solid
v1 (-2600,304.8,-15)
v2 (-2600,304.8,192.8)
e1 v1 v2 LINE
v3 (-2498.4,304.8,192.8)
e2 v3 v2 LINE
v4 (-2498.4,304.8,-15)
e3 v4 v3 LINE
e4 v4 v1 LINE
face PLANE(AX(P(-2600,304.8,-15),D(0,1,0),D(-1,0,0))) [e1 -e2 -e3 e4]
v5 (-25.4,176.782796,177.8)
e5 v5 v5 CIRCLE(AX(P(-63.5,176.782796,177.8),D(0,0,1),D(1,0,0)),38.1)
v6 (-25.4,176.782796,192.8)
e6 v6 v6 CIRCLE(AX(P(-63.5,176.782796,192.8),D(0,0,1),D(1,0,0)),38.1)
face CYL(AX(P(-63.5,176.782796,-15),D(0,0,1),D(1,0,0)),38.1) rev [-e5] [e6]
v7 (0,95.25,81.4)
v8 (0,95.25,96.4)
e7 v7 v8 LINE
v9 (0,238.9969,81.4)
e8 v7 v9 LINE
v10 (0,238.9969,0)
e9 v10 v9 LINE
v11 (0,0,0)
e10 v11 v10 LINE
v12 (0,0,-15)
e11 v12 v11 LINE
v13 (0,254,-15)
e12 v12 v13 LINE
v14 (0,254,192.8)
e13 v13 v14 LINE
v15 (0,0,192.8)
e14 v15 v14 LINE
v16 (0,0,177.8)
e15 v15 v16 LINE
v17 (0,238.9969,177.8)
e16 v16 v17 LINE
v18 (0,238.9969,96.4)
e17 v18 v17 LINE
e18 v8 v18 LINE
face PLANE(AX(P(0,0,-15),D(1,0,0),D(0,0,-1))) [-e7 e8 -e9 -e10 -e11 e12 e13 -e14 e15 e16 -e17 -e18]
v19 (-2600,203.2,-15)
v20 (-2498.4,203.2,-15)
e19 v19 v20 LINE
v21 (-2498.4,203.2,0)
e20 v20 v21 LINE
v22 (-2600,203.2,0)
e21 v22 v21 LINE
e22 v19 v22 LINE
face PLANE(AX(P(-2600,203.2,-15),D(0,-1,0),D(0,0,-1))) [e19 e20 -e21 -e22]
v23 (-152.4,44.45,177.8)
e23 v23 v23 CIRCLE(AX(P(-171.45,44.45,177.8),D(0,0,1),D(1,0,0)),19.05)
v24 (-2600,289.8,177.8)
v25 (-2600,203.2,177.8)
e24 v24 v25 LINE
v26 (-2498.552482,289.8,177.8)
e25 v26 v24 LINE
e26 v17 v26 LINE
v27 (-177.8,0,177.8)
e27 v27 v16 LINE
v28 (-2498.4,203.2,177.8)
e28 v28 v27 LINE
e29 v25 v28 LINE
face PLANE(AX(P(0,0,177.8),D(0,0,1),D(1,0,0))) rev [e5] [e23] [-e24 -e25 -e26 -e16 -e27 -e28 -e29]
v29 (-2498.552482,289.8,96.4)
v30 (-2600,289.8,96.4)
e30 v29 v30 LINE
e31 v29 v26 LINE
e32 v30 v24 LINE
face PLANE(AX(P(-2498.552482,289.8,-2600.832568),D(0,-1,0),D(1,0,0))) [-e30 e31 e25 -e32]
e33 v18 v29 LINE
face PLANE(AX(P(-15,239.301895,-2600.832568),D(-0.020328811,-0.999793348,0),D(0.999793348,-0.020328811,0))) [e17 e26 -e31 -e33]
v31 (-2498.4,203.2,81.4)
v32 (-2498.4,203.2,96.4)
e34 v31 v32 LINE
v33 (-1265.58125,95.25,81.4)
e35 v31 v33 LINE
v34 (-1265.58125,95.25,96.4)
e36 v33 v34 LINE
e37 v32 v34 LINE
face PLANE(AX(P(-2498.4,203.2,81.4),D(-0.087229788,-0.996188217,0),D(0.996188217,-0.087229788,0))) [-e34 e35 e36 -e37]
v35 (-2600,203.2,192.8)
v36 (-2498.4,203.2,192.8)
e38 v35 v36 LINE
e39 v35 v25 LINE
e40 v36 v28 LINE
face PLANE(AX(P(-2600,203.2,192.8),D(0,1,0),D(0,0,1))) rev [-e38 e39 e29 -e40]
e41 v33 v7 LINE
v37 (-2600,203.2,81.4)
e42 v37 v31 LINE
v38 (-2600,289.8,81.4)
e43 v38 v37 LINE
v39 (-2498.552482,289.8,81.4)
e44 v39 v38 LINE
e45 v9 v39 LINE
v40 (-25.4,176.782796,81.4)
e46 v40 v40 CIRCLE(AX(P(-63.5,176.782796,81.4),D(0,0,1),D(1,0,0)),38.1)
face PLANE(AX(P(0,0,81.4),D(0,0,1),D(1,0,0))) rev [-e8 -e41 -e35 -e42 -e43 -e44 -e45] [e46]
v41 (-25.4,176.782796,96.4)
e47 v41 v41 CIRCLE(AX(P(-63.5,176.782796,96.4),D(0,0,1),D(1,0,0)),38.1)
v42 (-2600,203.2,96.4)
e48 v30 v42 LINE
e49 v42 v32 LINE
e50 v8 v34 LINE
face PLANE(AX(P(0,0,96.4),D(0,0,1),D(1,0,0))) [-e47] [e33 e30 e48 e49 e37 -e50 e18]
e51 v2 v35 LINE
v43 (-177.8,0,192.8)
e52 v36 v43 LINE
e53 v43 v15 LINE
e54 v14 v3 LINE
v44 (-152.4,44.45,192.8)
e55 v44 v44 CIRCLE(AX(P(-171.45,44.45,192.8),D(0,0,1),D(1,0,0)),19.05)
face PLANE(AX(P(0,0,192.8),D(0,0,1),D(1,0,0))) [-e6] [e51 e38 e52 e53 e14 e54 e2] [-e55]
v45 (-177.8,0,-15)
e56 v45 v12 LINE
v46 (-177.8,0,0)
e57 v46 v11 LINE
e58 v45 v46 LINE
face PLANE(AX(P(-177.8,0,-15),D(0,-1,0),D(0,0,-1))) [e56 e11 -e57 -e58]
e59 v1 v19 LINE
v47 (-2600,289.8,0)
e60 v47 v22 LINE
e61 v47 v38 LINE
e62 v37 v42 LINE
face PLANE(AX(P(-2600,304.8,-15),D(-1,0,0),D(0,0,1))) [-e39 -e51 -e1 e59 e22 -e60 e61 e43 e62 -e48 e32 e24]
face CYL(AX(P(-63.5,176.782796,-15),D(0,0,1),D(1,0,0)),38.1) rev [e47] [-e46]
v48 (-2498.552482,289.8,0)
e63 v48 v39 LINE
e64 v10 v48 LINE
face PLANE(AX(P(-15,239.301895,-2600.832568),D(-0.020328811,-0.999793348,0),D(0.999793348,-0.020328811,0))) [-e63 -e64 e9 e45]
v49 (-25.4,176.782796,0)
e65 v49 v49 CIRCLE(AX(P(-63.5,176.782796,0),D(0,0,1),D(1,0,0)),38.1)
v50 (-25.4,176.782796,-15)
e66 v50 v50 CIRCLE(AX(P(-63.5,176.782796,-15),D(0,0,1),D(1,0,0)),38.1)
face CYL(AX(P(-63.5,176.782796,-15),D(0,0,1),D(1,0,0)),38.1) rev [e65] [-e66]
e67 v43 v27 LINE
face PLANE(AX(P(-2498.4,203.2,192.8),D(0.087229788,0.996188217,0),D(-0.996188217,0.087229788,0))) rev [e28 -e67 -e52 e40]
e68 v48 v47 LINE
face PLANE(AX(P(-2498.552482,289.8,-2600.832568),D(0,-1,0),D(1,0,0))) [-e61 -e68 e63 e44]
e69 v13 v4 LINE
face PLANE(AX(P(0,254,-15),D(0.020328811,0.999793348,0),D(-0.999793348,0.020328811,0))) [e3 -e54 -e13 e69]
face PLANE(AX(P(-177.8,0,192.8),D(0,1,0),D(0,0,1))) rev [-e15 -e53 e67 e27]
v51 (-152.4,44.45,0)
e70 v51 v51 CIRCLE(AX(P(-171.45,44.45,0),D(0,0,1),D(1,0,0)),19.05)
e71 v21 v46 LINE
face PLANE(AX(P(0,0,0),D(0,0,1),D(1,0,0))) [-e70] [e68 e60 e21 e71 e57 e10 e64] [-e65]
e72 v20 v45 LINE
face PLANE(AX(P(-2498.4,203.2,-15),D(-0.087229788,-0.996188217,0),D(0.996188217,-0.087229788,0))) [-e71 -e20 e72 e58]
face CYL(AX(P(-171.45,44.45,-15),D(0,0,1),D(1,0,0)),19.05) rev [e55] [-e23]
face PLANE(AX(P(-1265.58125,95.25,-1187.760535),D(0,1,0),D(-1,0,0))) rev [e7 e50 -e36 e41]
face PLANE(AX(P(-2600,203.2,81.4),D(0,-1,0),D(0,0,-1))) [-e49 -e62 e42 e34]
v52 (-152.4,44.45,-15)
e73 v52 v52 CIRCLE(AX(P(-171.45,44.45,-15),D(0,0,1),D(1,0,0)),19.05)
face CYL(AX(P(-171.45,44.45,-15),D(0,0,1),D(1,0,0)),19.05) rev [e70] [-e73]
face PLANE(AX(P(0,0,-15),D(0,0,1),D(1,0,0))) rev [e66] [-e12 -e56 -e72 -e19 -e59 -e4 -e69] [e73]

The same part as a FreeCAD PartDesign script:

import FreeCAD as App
import Part
import Sketcher

V = App.Vector
Q = App.Units.Quantity

doc = App.newDocument("Part")
body = doc.addObject("PartDesign::Body", "Body")

sketch1 = body.newObject("Sketcher::SketchObject", "Sketch")
sketch1.AttachmentSupport = (doc.getObject("XY_Plane"), [""])
sketch1.MapMode = "FlatFace"
sketch1.addGeometry(Part.LineSegment(V(-2498, 305, 0), V(-2600, 305, 0)), False)
sketch1.addGeometry(Part.LineSegment(V(-2600, 305, 0), V(-2600, 203, 0)), False)
sketch1.addGeometry(Part.LineSegment(V(-2600, 203, 0), V(-2498, 203, 0)), False)
sketch1.addGeometry(Part.LineSegment(V(-2498, 203, 0), V(-178, 0, 0)), False)
sketch1.addGeometry(Part.LineSegment(V(-178, 0, 0), V(0, 0, 0)), False)
sketch1.addGeometry(Part.LineSegment(V(0, 0, 0), V(0, 254, 0)), False)
sketch1.addGeometry(Part.LineSegment(V(0, 254, 0), V(-2498, 305, 0)), False)
sketch1.addConstraint(Sketcher.Constraint("Coincident", 0, 2, 1, 1))
sketch1.addConstraint(Sketcher.Constraint("Coincident", 1, 2, 2, 1))
sketch1.addConstraint(Sketcher.Constraint("Coincident", 2, 2, 3, 1))
sketch1.addConstraint(Sketcher.Constraint("Coincident", 3, 2, 4, 1))
sketch1.addConstraint(Sketcher.Constraint("Coincident", 4, 2, 5, 1))
sketch1.addConstraint(Sketcher.Constraint("Coincident", 5, 2, 6, 1))
sketch1.addConstraint(Sketcher.Constraint("Coincident", 6, 2, 0, 1))
sketch1.addConstraint(Sketcher.Constraint("Horizontal", 0))
sketch1.addConstraint(Sketcher.Constraint("Vertical", 1))
sketch1.addConstraint(Sketcher.Constraint("Horizontal", 2))
sketch1.addConstraint(Sketcher.Constraint("Horizontal", 4))
sketch1.addConstraint(Sketcher.Constraint("Vertical", 5))
sketch1.addConstraint(Sketcher.Constraint("Coincident", 4, 2, -1, 1))
sketch1.addConstraint(Sketcher.Constraint("Vertical", 2, 2, 6, 2))
sketch1.addConstraint(Sketcher.Constraint("Equal", 2, 1))
sketch1.addConstraint(Sketcher.Constraint("DistanceX", 0, 2, 0, 1, Q("4 in")))
sketch1.addConstraint(Sketcher.Constraint("DistanceX", 4, 1, 4, 2, Q("7 in")))
sketch1.addConstraint(Sketcher.Constraint("DistanceY", 5, 1, 5, 2, Q("10 in")))
sketch1.addConstraint(Sketcher.Constraint("DistanceY", -1, 1, 0, 2, Q("12 in")))
sketch1.addConstraint(Sketcher.Constraint("DistanceX", 0, 2, -1, 1, 2600.0))
pad1 = body.newObject("PartDesign::Pad", "Pad")
pad1.Profile = sketch1
pad1.Length = 15
pad1.Reversed = True
body2 = doc.addObject("PartDesign::Body", "Body001")

sketch2 = body2.newObject("Sketcher::SketchObject", "Sketch001")
sketch2.AttachmentSupport = (doc.getObject("XY_Plane001"), [""])
sketch2.MapMode = "FlatFace"
sketch2.AttachmentOffset = App.Placement(V(0, 0, 7 * 25.4), App.Rotation())
sketch2.addGeometry(Part.LineSegment(V(-2498, 203, 0), V(-178, 0, 0)), False)
sketch2.addGeometry(Part.LineSegment(V(-178, 0, 0), V(0, 0, 0)), False)
sketch2.addGeometry(Part.LineSegment(V(0, 0, 0), V(0, 254, 0)), False)
sketch2.addGeometry(Part.LineSegment(V(0, 254, 0), V(-2498, 305, 0)), False)
sketch2.addGeometry(Part.LineSegment(V(-2498, 305, 0), V(-2600, 305, 0)), False)
sketch2.addGeometry(Part.LineSegment(V(-2600, 305, 0), V(-2600, 203, 0)), False)
sketch2.addGeometry(Part.LineSegment(V(-2600, 203, 0), V(-2498, 203, 0)), False)
sketch2.addConstraint(Sketcher.Constraint("Coincident", 0, 2, 1, 1))
sketch2.addConstraint(Sketcher.Constraint("Coincident", 1, 2, 2, 1))
sketch2.addConstraint(Sketcher.Constraint("Coincident", 2, 2, 3, 1))
sketch2.addConstraint(Sketcher.Constraint("Coincident", 3, 2, 4, 1))
sketch2.addConstraint(Sketcher.Constraint("Coincident", 4, 2, 5, 1))
sketch2.addConstraint(Sketcher.Constraint("Coincident", 5, 2, 6, 1))
sketch2.addConstraint(Sketcher.Constraint("Coincident", 6, 2, 0, 1))
sketch2.addConstraint(Sketcher.Constraint("Horizontal", 1))
sketch2.addConstraint(Sketcher.Constraint("Vertical", 2))
sketch2.addConstraint(Sketcher.Constraint("Horizontal", 4))
sketch2.addConstraint(Sketcher.Constraint("Vertical", 5))
sketch2.addConstraint(Sketcher.Constraint("Horizontal", 6))
sketch2.addConstraint(Sketcher.Constraint("Coincident", 1, 2, -1, 1))
sketch2.addConstraint(Sketcher.Constraint("Vertical", 3, 2, 6, 2))
sketch2.addConstraint(Sketcher.Constraint("Equal", 6, 5))
sketch2.addConstraint(Sketcher.Constraint("DistanceX", 1, 1, 1, 2, Q("7 in")))
sketch2.addConstraint(Sketcher.Constraint("DistanceX", 4, 2, 4, 1, Q("4 in")))
sketch2.addConstraint(Sketcher.Constraint("DistanceY", 2, 1, 2, 2, Q("10 in")))
sketch2.addConstraint(Sketcher.Constraint("DistanceY", -1, 1, 3, 2, Q("12 in")))
sketch2.addConstraint(Sketcher.Constraint("DistanceX", 3, 2, -1, 1, 2498.4))
pad2 = body2.newObject("PartDesign::Pad", "Pad001")
pad2.Profile = sketch2
pad2.Length = 15
body.AllowCompound = True
doc.recompute()

boolean = body.newObject("PartDesign::Boolean", "Boolean")
boolean.Type = "Fuse"
boolean.addObjects([body2])

sketch3 = body.newObject("Sketcher::SketchObject", "Sketch002")
sketch3.AttachmentSupport = (doc.getObject("XY_Plane"), [""])
sketch3.MapMode = "FlatFace"
sketch3.AttachmentOffset = App.Placement(V(0, 0, 192.8), App.Rotation())
sketch3.addGeometry(Part.LineSegment(V(-2600, 304.8, 0), V(-2600, 289.8, 0)), False)
sketch3.addGeometry(Part.LineSegment(V(-2600, 289.8, 0), V(-2498.552482, 289.8, 0)), False)
sketch3.addGeometry(Part.LineSegment(V(-2498.552482, 289.8, 0), V(-15, 239.301895, 0)), False)
sketch3.addGeometry(Part.LineSegment(V(-15, 239.301895, 0), V(0, 238.9969, 0)), False)
sketch3.addGeometry(Part.LineSegment(V(0, 238.9969, 0), V(0, 254, 0)), False)
sketch3.addGeometry(Part.LineSegment(V(0, 254, 0), V(-2498.4, 304.8, 0)), False)
sketch3.addGeometry(Part.LineSegment(V(-2498.4, 304.8, 0), V(-2600, 304.8, 0)), False)
sketch3.addConstraint(Sketcher.Constraint("Coincident", 0, 2, 1, 1))
sketch3.addConstraint(Sketcher.Constraint("Coincident", 1, 2, 2, 1))
sketch3.addConstraint(Sketcher.Constraint("Coincident", 2, 2, 3, 1))
sketch3.addConstraint(Sketcher.Constraint("Coincident", 3, 2, 4, 1))
sketch3.addConstraint(Sketcher.Constraint("Coincident", 4, 2, 5, 1))
sketch3.addConstraint(Sketcher.Constraint("Coincident", 5, 2, 6, 1))
sketch3.addConstraint(Sketcher.Constraint("Coincident", 6, 2, 0, 1))
sketch3.addConstraint(Sketcher.Constraint("Vertical", 0))
sketch3.addConstraint(Sketcher.Constraint("Horizontal", 1))
sketch3.addConstraint(Sketcher.Constraint("Vertical", 4))
sketch3.addConstraint(Sketcher.Constraint("Horizontal", 6))
sketch3.addConstraint(Sketcher.Constraint("PointOnObject", 3, 2, -2))
sketch3.addConstraint(Sketcher.Constraint("Parallel", 2, 3))
sketch3.addConstraint(Sketcher.Constraint("Parallel", 3, 5))
sketch3.addConstraint(Sketcher.Constraint("DistanceX", 6, 2, 6, 1, Q("4 in")))
sketch3.addConstraint(Sketcher.Constraint("DistanceY", -1, 1, 4, 2, Q("10 in")))
sketch3.addConstraint(Sketcher.Constraint("DistanceY", -1, 1, 5, 2, Q("12 in")))
sketch3.addConstraint(Sketcher.Constraint("DistanceY", 0, 2, 0, 1, 15.0))
sketch3.addConstraint(Sketcher.Constraint("DistanceY", 4, 1, 4, 2, 15.0031))
sketch3.addConstraint(Sketcher.Constraint("Distance", 3, 15.0031))
sketch3.addConstraint(Sketcher.Constraint("DistanceX", 0, 2, -1, 1, 2600.0))
pad3 = body.newObject("PartDesign::Pad", "Pad002")
pad3.Profile = sketch3
pad3.Length = 192.8
pad3.Reversed = True

sketch4 = body.newObject("Sketcher::SketchObject", "Sketch003")
sketch4.AttachmentSupport = (doc.getObject("XY_Plane"), [""])
sketch4.MapMode = "FlatFace"
sketch4.AttachmentOffset = App.Placement(V(0, 0, 3.5 * 25.4), App.Rotation())
sketch4.addGeometry(Part.LineSegment(V(-2498, 203, 0), V(-178, 0, 0)), False)
sketch4.addGeometry(Part.LineSegment(V(-178, 0, 0), V(0, 0, 0)), False)
sketch4.addGeometry(Part.LineSegment(V(0, 0, 0), V(0, 254, 0)), False)
sketch4.addGeometry(Part.LineSegment(V(0, 254, 0), V(-2498, 305, 0)), False)
sketch4.addGeometry(Part.LineSegment(V(-2498, 305, 0), V(-2600, 305, 0)), False)
sketch4.addGeometry(Part.LineSegment(V(-2600, 305, 0), V(-2600, 203, 0)), False)
sketch4.addGeometry(Part.LineSegment(V(-2600, 203, 0), V(-2498, 203, 0)), False)
sketch4.addConstraint(Sketcher.Constraint("Coincident", 0, 2, 1, 1))
sketch4.addConstraint(Sketcher.Constraint("Coincident", 1, 2, 2, 1))
sketch4.addConstraint(Sketcher.Constraint("Coincident", 2, 2, 3, 1))
sketch4.addConstraint(Sketcher.Constraint("Coincident", 3, 2, 4, 1))
sketch4.addConstraint(Sketcher.Constraint("Coincident", 4, 2, 5, 1))
sketch4.addConstraint(Sketcher.Constraint("Coincident", 5, 2, 6, 1))
sketch4.addConstraint(Sketcher.Constraint("Coincident", 6, 2, 0, 1))
sketch4.addConstraint(Sketcher.Constraint("Horizontal", 1))
sketch4.addConstraint(Sketcher.Constraint("Vertical", 2))
sketch4.addConstraint(Sketcher.Constraint("Horizontal", 4))
sketch4.addConstraint(Sketcher.Constraint("Vertical", 5))
sketch4.addConstraint(Sketcher.Constraint("Horizontal", 6))
sketch4.addConstraint(Sketcher.Constraint("Coincident", 1, 2, -1, 1))
sketch4.addConstraint(Sketcher.Constraint("Vertical", 3, 2, 6, 2))
sketch4.addConstraint(Sketcher.Constraint("Equal", 6, 5))
sketch4.addConstraint(Sketcher.Constraint("DistanceX", 1, 1, 1, 2, Q("7 in")))
sketch4.addConstraint(Sketcher.Constraint("DistanceX", 4, 2, 4, 1, Q("4 in")))
sketch4.addConstraint(Sketcher.Constraint("DistanceY", 2, 1, 2, 2, Q("10 in")))
sketch4.addConstraint(Sketcher.Constraint("DistanceY", -1, 1, 3, 2, Q("12 in")))
sketch4.addConstraint(Sketcher.Constraint("DistanceX", 3, 2, -1, 1, 2498.4))
pad4 = body.newObject("PartDesign::Pad", "Pad003")
pad4.Profile = sketch4
pad4.Type = "TwoLengths"
pad4.Length = 7.5
pad4.Length2 = 7.5

sketch5 = body.newObject("Sketcher::SketchObject", "Sketch004")
sketch5.AttachmentSupport = (doc.getObject("XY_Plane"), [""])
sketch5.MapMode = "FlatFace"
sketch5.AttachmentOffset = App.Placement(V(0, 0, 192.8), App.Rotation())
sketch5.addGeometry(Part.Circle(V(-64, 177, 0), V(0, 0, 1), 38), False)
sketch5.addGeometry(Part.Circle(V(-171, 44, 0), V(0, 0, 1), 19), False)
sketch5.addConstraint(Sketcher.Constraint("Diameter", 0, Q("3 in")))
sketch5.addConstraint(Sketcher.Constraint("Diameter", 1, Q("1.5 in")))
sketch5.addConstraint(Sketcher.Constraint("DistanceX", 0, 3, -1, 1, Q("2.5 in")))
sketch5.addConstraint(Sketcher.Constraint("DistanceX", 1, 3, -1, 1, Q("6.75 in")))
sketch5.addConstraint(Sketcher.Constraint("DistanceY", -1, 1, 1, 3, Q("1.75 in")))
sketch5.addConstraint(Sketcher.Constraint("DistanceY", -1, 1, 0, 3, 176.782796))
pocket1 = body.newObject("PartDesign::Pocket", "Pocket")
pocket1.Profile = sketch5
pocket1.Type = "ThroughAll"

sketch6 = body.newObject("Sketcher::SketchObject", "Sketch005")
sketch6.AttachmentSupport = (doc.getObject("XY_Plane"), [""])
sketch6.MapMode = "FlatFace"
sketch6.AttachmentOffset = App.Placement(V(0, 0, 96.4), App.Rotation())
sketch6.addGeometry(Part.LineSegment(V(0, 95, 0), V(-1266, 95, 0)), False)
sketch6.addGeometry(Part.LineSegment(V(-1266, 95, 0), V(-178, 0, 0)), False)
sketch6.addGeometry(Part.LineSegment(V(-178, 0, 0), V(0, 0, 0)), False)
sketch6.addGeometry(Part.LineSegment(V(0, 0, 0), V(0, 95, 0)), False)
sketch6.addConstraint(Sketcher.Constraint("Coincident", 0, 2, 1, 1))
sketch6.addConstraint(Sketcher.Constraint("Coincident", 1, 2, 2, 1))
sketch6.addConstraint(Sketcher.Constraint("Coincident", 2, 2, 3, 1))
sketch6.addConstraint(Sketcher.Constraint("Coincident", 3, 2, 0, 1))
sketch6.addConstraint(Sketcher.Constraint("Horizontal", 0))
sketch6.addConstraint(Sketcher.Constraint("Horizontal", 2))
sketch6.addConstraint(Sketcher.Constraint("Vertical", 3))
sketch6.addConstraint(Sketcher.Constraint("Coincident", 2, 2, -1, 1))
sketch6.addConstraint(Sketcher.Constraint("DistanceX", 2, 1, 2, 2, Q("7 in")))
sketch6.addConstraint(Sketcher.Constraint("DistanceY", 3, 1, 3, 2, Q("3.75 in")))
sketch6.addConstraint(Sketcher.Constraint("Distance", 1, 1091.943501))
pocket2 = body.newObject("PartDesign::Pocket", "Pocket001")
pocket2.Profile = sketch6
pocket2.Length = 15

doc.recompute()
